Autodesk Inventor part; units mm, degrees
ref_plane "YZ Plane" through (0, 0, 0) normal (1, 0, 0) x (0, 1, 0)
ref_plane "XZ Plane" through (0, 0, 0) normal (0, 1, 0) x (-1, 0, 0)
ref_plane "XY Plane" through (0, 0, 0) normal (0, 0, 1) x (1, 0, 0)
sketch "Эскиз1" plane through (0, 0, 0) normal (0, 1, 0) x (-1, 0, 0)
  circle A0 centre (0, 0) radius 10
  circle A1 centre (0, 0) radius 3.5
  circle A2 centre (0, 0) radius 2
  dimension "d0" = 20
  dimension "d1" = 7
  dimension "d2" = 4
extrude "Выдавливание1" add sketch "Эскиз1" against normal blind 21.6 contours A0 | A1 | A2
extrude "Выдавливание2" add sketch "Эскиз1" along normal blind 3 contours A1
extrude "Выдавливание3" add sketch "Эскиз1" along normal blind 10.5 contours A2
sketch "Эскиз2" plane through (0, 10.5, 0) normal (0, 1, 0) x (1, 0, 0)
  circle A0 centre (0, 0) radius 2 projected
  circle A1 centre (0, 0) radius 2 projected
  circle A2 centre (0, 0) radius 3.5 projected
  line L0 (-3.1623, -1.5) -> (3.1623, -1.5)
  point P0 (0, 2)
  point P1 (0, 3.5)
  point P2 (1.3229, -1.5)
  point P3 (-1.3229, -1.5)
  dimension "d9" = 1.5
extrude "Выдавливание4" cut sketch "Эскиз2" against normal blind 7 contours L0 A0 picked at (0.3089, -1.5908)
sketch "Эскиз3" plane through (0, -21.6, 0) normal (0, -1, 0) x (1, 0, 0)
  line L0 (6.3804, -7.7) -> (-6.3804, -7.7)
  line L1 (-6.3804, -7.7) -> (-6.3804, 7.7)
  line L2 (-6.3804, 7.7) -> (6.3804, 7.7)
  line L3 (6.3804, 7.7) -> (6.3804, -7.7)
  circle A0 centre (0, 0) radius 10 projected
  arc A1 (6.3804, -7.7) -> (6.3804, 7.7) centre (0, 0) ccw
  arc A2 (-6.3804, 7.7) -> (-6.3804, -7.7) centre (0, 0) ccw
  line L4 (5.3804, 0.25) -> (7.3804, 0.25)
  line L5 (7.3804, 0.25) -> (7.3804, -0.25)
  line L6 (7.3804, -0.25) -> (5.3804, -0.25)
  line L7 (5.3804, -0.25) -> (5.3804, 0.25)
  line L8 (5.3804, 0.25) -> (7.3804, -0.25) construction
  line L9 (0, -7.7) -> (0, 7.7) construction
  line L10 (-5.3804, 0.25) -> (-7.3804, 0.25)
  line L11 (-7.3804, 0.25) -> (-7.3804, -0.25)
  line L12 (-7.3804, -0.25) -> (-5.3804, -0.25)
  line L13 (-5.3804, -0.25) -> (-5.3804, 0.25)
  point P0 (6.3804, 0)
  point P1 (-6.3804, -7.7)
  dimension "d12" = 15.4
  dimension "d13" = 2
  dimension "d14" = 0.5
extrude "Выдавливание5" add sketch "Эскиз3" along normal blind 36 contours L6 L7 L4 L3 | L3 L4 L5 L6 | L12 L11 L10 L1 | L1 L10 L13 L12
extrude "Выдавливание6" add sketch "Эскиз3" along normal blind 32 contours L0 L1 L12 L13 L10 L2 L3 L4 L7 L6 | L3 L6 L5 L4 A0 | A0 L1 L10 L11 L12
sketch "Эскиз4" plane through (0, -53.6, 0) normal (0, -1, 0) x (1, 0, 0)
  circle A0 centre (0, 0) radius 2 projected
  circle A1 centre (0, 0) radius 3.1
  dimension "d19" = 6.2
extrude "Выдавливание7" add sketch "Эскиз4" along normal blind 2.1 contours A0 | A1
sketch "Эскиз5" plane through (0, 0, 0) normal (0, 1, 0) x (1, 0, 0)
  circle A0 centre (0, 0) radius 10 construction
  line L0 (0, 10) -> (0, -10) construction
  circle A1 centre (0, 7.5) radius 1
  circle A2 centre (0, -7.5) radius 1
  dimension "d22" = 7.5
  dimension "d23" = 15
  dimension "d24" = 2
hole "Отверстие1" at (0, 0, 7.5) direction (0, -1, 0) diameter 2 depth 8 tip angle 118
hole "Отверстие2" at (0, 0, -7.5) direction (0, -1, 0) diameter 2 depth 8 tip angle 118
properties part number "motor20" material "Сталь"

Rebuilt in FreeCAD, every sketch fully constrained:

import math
import FreeCAD as App
import Part
import Sketcher
Q = App.Units.Quantity


def add_polygon(sketch, points):
    """Adds a closed chain of lines whose ends are joined by coincident constraints."""
    first, n = sketch.GeometryCount, len(points)
    for a, b in zip(points, points[1:] + points[:1]):
        sketch.addGeometry(Part.LineSegment(App.Vector(*a, 0), App.Vector(*b, 0)), False)
    for i in range(n):
        sketch.addConstraint(Sketcher.Constraint("Coincident", first + i, 2, first + (i + 1) % n, 1))

doc = App.newDocument("Part")
body = doc.addObject("PartDesign::Body", "Body")

# Sketch on XZ plane
sketch1 = doc.addObject("Sketcher::SketchObject", "Sketch")
body.addObject(sketch1)
sketch1.AttachmentSupport = (doc.XZ_Plane, [""])
sketch1.MapMode = "FlatFace"
sketch1.addGeometry(Part.Circle(App.Vector(0, 0, 0), App.Vector(0, 0, 1), 10), False)
sketch1.addConstraint([
    Sketcher.Constraint("Coincident", 0, 3, -1, 1),
    Sketcher.Constraint("Diameter", 0, Q("20 mm")),
])
pad1 = doc.addObject("PartDesign::Pad", "Pad")
body.addObject(pad1)
pad1.Profile = sketch1
pad1.Length = 21.6

# Sketch on XZ plane
sketch2 = doc.addObject("Sketcher::SketchObject", "Sketch001")
body.addObject(sketch2)
sketch2.AttachmentSupport = (doc.XZ_Plane, [""])
sketch2.MapMode = "FlatFace"
sketch2.addGeometry([
    Part.Circle(App.Vector(0, 0, 0), App.Vector(0, 0, 1), 3.5),
    Part.Circle(App.Vector(0, 0, 0), App.Vector(0, 0, 1), 2),
], False)
sketch2.addConstraint([
    Sketcher.Constraint("Coincident", 0, 3, -1, 1),
    Sketcher.Constraint("Coincident", 1, 3, -1, 1),
    Sketcher.Constraint("Diameter", 0, Q("7 mm")),
    Sketcher.Constraint("Diameter", 1, Q("4 mm")),
])
pad2 = doc.addObject("PartDesign::Pad", "Pad001")
body.addObject(pad2)
pad2.Profile = sketch2
pad2.Length = 3
pad2.Reversed = True

# Sketch on XZ plane
sketch3 = doc.addObject("Sketcher::SketchObject", "Sketch002")
body.addObject(sketch3)
sketch3.AttachmentSupport = (doc.XZ_Plane, [""])
sketch3.MapMode = "FlatFace"
sketch3.addGeometry(Part.Circle(App.Vector(0, 0, 0), App.Vector(0, 0, 1), 2), False)
sketch3.addConstraint([
    Sketcher.Constraint("Coincident", 0, 3, -1, 1),
    Sketcher.Constraint("Diameter", 0, Q("4 mm")),
])
pad3 = doc.addObject("PartDesign::Pad", "Pad002")
body.addObject(pad3)
pad3.Profile = sketch3
pad3.Length = 10.5
pad3.Reversed = True

# Sketch on XZ plane
sketch4 = doc.addObject("Sketcher::SketchObject", "Sketch003")
body.addObject(sketch4)
sketch4.AttachmentSupport = (doc.XZ_Plane, [""])
sketch4.MapMode = "FlatFace"
sketch4.AttachmentOffset = App.Placement(App.Vector(0, 0, -10.5), App.Rotation())
sketch4.addGeometry([
    Part.LineSegment(App.Vector(1.322876, 1.5, 0), App.Vector(-1.322876, 1.5, 0)),
    Part.ArcOfCircle(Part.Circle(App.Vector(0, 0, 0), App.Vector(0, 0, 1), 2), math.radians(48.590378), math.radians(131.409622)),
], False)
sketch4.addConstraint([
    Sketcher.Constraint("Coincident", 0, 1, 1, 1),
    Sketcher.Constraint("Coincident", 1, 2, 0, 2),
    Sketcher.Constraint("Horizontal", 0),
    Sketcher.Constraint("Coincident", 1, 3, -1, 1),
    Sketcher.Constraint("Radius", 1, Q("2 mm")),
    Sketcher.Constraint("DistanceY", -1, 1, 0, 1, Q("1.5 mm")),
])
pocket1 = doc.addObject("PartDesign::Pocket", "Pocket")
body.addObject(pocket1)
pocket1.Profile = sketch4
pocket1.Length = 7
pocket1.Reversed = True

# Sketch on XZ plane
sketch5 = doc.addObject("Sketcher::SketchObject", "Sketch004")
body.addObject(sketch5)
sketch5.AttachmentSupport = (doc.XZ_Plane, [""])
sketch5.MapMode = "FlatFace"
sketch5.AttachmentOffset = App.Placement(App.Vector(0, 0, 21.6), App.Rotation())
add_polygon(sketch5, [(5.3804, -0.25), (7.3804, -0.25), (7.3804, 0.25), (5.3804, 0.25)])  # lines 0-3
add_polygon(sketch5, [(-7.3804, -0.25), (-5.3804, -0.25), (-5.3804, 0.25), (-7.3804, 0.25)])  # lines 4-7
sketch5.addConstraint([
    Sketcher.Constraint("Horizontal", 0),
    Sketcher.Constraint("Vertical", 1),
    Sketcher.Constraint("Horizontal", 2),
    Sketcher.Constraint("Vertical", 3),
    Sketcher.Constraint("Horizontal", 4),
    Sketcher.Constraint("Vertical", 5),
    Sketcher.Constraint("Horizontal", 6),
    Sketcher.Constraint("Vertical", 7),
    Sketcher.Constraint("Symmetric", 2, 2, 4, 2, -1, 1),
    Sketcher.Constraint("Symmetric", 0, 2, 6, 2, -1, 1),
    Sketcher.Constraint("Horizontal", 3, 2, 4, 2),
    Sketcher.Constraint("DistanceX", 0, 1, 0, 2, Q("2 mm")),
    Sketcher.Constraint("DistanceY", 1, 1, 1, 2, Q("0.5 mm")),
    Sketcher.Constraint("DistanceX", -1, 1, 0, 2, Q("7.3804 mm")),
])
pad4 = doc.addObject("PartDesign::Pad", "Pad003")
body.addObject(pad4)
pad4.Profile = sketch5
pad4.Length = 36

# Sketch on XZ plane
sketch6 = doc.addObject("Sketcher::SketchObject", "Sketch005")
body.addObject(sketch6)
sketch6.AttachmentSupport = (doc.XZ_Plane, [""])
sketch6.MapMode = "FlatFace"
sketch6.AttachmentOffset = App.Placement(App.Vector(0, 0, 21.6), App.Rotation())
sketch6.addGeometry(Part.LineSegment(App.Vector(-6.3804, -7.7, 0), App.Vector(6.3804, -7.7, 0)), False)  # 0
sketch6.addGeometry(Part.ArcOfCircle(Part.Circle(App.Vector(0, 0, 0), App.Vector(0, 0, 1), 10), math.radians(-50.35406), math.radians(50.35406)), False)  # 1
sketch6.addGeometry(Part.LineSegment(App.Vector(6.3804, 7.7, 0), App.Vector(-6.3804, 7.7, 0)), False)  # 2
sketch6.addGeometry(Part.ArcOfCircle(Part.Circle(App.Vector(0, 0, 0), App.Vector(0, 0, 1), 10), math.radians(129.64594), math.radians(230.35406)), False)  # 3
add_polygon(sketch6, [(-5.3804, -0.25), (-7.3804, -0.25), (-7.3804, 0.25), (-5.3804, 0.25)])  # lines 4-7
add_polygon(sketch6, [(5.3804, 0.25), (7.3804, 0.25), (7.3804, -0.25), (5.3804, -0.25)])  # lines 8-11
sketch6.addConstraint([
    Sketcher.Constraint("Coincident", 0, 2, 1, 1),
    Sketcher.Constraint("Coincident", 1, 2, 2, 1),
    Sketcher.Constraint("Coincident", 2, 2, 3, 1),
    Sketcher.Constraint("Coincident", 3, 2, 0, 1),
    Sketcher.Constraint("Horizontal", 0),
    Sketcher.Constraint("Horizontal", 2),
    Sketcher.Constraint("Horizontal", 4),
    Sketcher.Constraint("Vertical", 5),
    Sketcher.Constraint("Horizontal", 6),
    Sketcher.Constraint("Vertical", 7),
    Sketcher.Constraint("Horizontal", 8),
    Sketcher.Constraint("Vertical", 9),
    Sketcher.Constraint("Horizontal", 10),
    Sketcher.Constraint("Vertical", 11),
    Sketcher.Constraint("Coincident", 1, 3, -1, 1),
    Sketcher.Constraint("Coincident", 3, 3, -1, 1),
    Sketcher.Constraint("Equal", 1, 3),
    Sketcher.Constraint("Symmetric", 4, 2, 8, 2, -1, 1),
    Sketcher.Constraint("Symmetric", 6, 2, 10, 2, -1, 1),
    Sketcher.Constraint("Horizontal", 6, 2, 8, 2),
    Sketcher.Constraint("Vertical", 0, 2, 1, 2),
    Sketcher.Constraint("DistanceX", 4, 2, 4, 1, Q("2 mm")),
    Sketcher.Constraint("DistanceY", 5, 1, 5, 2, Q("0.5 mm")),
    Sketcher.Constraint("Radius", 1, Q("10 mm")),
    Sketcher.Constraint("DistanceY", 0, 2, 1, 2, Q("15.4 mm")),
    Sketcher.Constraint("DistanceX", 4, 2, 3, 2, Q("1 mm")),
])
pad5 = doc.addObject("PartDesign::Pad", "Pad004")
body.addObject(pad5)
pad5.Profile = sketch6
pad5.Length = 32

# Sketch on XZ plane
sketch7 = doc.addObject("Sketcher::SketchObject", "Sketch006")
body.addObject(sketch7)
sketch7.AttachmentSupport = (doc.XZ_Plane, [""])
sketch7.MapMode = "FlatFace"
sketch7.AttachmentOffset = App.Placement(App.Vector(0, 0, 53.6), App.Rotation())
sketch7.addGeometry(Part.Circle(App.Vector(0, 0, 0), App.Vector(0, 0, 1), 3.1), False)
sketch7.addConstraint([
    Sketcher.Constraint("Coincident", 0, 3, -1, 1),
    Sketcher.Constraint("Diameter", 0, Q("6.2 mm")),
])
pad6 = doc.addObject("PartDesign::Pad", "Pad005")
body.addObject(pad6)
pad6.Profile = sketch7
pad6.Length = 2.1

# Sketch on XZ plane
sketch8 = doc.addObject("Sketcher::SketchObject", "Sketch007")
body.addObject(sketch8)
sketch8.AttachmentSupport = (doc.XZ_Plane, [""])
sketch8.MapMode = "FlatFace"
sketch8.addGeometry(Part.Circle(App.Vector(0, 7.5, 0), App.Vector(0, 0, 1), 1), False)
sketch8.addConstraint([
    Sketcher.Constraint("PointOnObject", 0, 3, -2),
    Sketcher.Constraint("Diameter", 0, Q("2 mm")),
    Sketcher.Constraint("DistanceY", -1, 1, 0, 3, Q("7.5 mm")),
])
doc.recompute()
hole = doc.addObject("PartDesign::Hole", "Hole")
body.addObject(hole)
hole.Profile = sketch8
hole.ThreadType = "None"
hole.Diameter = 2
hole.DepthType = "Dimension"
hole.Depth = 8
hole.DrillPoint = "Angled"
hole.DrillPointAngle = 118
hole.Reversed = True

# Sketch on XZ plane
sketch9 = doc.addObject("Sketcher::SketchObject", "Sketch008")
body.addObject(sketch9)
sketch9.AttachmentSupport = (doc.XZ_Plane, [""])
sketch9.MapMode = "FlatFace"
sketch9.addGeometry(Part.Circle(App.Vector(0, -7.5, 0), App.Vector(0, 0, 1), 1), False)
sketch9.addConstraint([
    Sketcher.Constraint("PointOnObject", 0, 3, -2),
    Sketcher.Constraint("Diameter", 0, Q("2 mm")),
    Sketcher.Constraint("DistanceY", 0, 3, -1, 1, Q("7.5 mm")),
])
doc.recompute()
hole2 = doc.addObject("PartDesign::Hole", "Hole001")
body.addObject(hole2)
hole2.Profile = sketch9
hole2.ThreadType = "None"
hole2.Diameter = 2
hole2.DepthType = "Dimension"
hole2.Depth = 8
hole2.DrillPoint = "Angled"
hole2.DrillPointAngle = 118
hole2.Reversed = True

doc.recompute()
